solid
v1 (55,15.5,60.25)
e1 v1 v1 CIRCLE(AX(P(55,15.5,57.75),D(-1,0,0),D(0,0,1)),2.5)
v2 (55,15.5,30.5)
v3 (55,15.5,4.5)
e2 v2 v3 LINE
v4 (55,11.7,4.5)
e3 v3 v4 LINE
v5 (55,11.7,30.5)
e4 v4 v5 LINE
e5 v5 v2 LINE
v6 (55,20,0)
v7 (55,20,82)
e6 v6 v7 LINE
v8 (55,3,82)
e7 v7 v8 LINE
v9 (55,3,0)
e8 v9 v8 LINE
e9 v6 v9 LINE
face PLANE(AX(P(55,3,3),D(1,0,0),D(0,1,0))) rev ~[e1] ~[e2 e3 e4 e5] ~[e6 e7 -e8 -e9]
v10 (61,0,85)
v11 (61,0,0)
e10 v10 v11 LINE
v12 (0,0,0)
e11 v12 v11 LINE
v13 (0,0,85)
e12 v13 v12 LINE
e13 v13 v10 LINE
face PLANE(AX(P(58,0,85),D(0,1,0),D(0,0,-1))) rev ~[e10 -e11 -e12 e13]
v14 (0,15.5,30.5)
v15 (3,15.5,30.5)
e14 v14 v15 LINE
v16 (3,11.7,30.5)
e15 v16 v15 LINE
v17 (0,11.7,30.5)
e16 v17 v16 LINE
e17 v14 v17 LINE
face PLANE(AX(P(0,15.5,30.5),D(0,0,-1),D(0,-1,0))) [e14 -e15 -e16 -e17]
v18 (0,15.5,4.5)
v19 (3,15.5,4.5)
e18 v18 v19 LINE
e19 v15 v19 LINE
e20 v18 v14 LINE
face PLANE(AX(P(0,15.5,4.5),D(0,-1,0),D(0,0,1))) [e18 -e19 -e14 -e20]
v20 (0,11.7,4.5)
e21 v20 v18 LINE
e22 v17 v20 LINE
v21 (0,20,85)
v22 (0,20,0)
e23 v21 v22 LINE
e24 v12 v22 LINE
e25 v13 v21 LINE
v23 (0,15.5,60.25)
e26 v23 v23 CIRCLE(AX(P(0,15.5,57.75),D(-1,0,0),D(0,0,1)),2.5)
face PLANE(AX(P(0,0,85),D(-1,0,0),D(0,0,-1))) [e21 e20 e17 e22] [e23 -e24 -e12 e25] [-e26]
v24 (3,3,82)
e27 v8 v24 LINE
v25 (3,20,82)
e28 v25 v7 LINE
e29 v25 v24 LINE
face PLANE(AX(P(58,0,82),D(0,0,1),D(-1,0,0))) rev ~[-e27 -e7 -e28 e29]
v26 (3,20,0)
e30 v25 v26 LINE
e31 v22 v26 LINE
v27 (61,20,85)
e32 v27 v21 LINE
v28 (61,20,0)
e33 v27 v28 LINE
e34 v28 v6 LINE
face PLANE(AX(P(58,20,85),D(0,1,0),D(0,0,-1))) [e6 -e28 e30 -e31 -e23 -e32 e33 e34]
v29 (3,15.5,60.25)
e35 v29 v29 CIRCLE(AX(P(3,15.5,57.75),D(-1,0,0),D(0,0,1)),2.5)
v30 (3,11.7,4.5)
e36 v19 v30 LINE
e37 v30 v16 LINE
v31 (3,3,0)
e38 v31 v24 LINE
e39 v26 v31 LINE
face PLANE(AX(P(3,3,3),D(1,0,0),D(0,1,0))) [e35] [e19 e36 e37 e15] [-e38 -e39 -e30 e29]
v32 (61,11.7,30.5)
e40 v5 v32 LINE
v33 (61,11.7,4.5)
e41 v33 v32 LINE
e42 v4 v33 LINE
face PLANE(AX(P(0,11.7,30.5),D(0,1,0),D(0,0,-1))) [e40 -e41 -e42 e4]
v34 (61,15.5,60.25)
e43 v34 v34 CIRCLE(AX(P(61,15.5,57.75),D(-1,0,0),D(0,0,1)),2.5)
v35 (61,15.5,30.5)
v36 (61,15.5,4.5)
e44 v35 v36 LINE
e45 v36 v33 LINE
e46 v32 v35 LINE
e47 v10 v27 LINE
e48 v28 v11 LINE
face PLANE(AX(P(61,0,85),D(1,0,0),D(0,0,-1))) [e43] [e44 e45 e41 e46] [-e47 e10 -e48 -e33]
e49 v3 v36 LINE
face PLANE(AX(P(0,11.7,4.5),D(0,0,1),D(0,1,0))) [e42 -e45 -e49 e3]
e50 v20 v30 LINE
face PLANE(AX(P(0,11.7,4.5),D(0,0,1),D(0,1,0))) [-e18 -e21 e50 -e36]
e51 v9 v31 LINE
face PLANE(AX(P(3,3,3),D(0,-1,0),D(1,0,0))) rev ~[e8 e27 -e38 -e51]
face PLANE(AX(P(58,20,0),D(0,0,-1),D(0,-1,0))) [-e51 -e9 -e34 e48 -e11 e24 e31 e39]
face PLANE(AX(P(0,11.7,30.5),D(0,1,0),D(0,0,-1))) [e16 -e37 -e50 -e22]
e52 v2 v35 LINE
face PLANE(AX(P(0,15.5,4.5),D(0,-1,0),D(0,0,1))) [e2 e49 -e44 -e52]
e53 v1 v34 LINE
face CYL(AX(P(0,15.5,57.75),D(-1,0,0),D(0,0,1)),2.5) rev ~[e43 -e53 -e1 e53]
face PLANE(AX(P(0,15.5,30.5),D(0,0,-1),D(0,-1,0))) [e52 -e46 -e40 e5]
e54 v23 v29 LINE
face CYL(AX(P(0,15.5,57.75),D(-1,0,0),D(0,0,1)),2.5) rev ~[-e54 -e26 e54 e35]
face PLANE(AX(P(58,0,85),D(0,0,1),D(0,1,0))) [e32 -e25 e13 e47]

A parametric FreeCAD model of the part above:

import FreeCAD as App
import Part
import Sketcher


def faces_at(feature, points):
    """Names of the faces that lie closest to the given points."""
    faces = feature.Shape.Faces
    near = lambda p: min(range(len(faces)), key=lambda i: faces[i].distToShape(Part.Vertex(*p))[0])
    return sorted({f"Face{near(p) + 1}" for p in points})

doc = App.newDocument("Part")
params = doc.addObject("Spreadsheet::Sheet", "Params")
for row, (alias, value) in enumerate([
    ("sketch1_width", "58 mm"),
    ("sketch1_height", "85 mm"),
    ("pad1_length", "20 mm"),
    ("thickness_wall", "3 mm"),
    ("sketch2_width", "52 mm"),
    ("sketch2_height", "17 mm"),
    ("pocket1_length", "10 mm"),
    ("sketch3_width", "20 mm"),
    ("sketch3_height", "85 mm"),
    ("pad2_length", "3 mm"),
    ("sketch4_height", "26 mm"),
    ("sketch4_width", "3.8 mm"),
    ("sketch5_diameter", "5 mm"),
], start=1):
    params.set(f"A{row}", alias)
    params.set(f"B{row}", "=" + value)
    params.setAlias(f"B{row}", alias)

body = doc.addObject("PartDesign::Body", "Body")

# Sketch on XZ plane
sketch1 = body.newObject("Sketcher::SketchObject", "Sketch")
sketch1.AttachmentSupport = (doc.getObject("XZ_Plane"), [""])
sketch1.MapMode = "FlatFace"
sketch1.addGeometry([
    Part.LineSegment(App.Vector(58, 0, 0), App.Vector(0, 0, 0)),
    Part.LineSegment(App.Vector(0, 0, 0), App.Vector(0, 85, 0)),
    Part.LineSegment(App.Vector(0, 85, 0), App.Vector(58, 85, 0)),
    Part.LineSegment(App.Vector(58, 85, 0), App.Vector(58, 0, 0)),
], False)
sketch1.addConstraint([
    Sketcher.Constraint("Coincident", 0, 2, 1, 1),
    Sketcher.Constraint("Coincident", 1, 2, 2, 1),
    Sketcher.Constraint("Coincident", 2, 2, 3, 1),
    Sketcher.Constraint("Coincident", 3, 2, 0, 1),
    Sketcher.Constraint("Horizontal", 0),
    Sketcher.Constraint("Vertical", 1),
    Sketcher.Constraint("Horizontal", 2),
    Sketcher.Constraint("Vertical", 3),
    Sketcher.Constraint("Coincident", 0, 2, -1, 1),
    Sketcher.Constraint("DistanceX", 0, 2, 0, 1, 58.0),
    Sketcher.Constraint("DistanceY", 1, 1, 1, 2, 85.0),
])
sketch1.setExpression("Constraints[9]", "Params.sketch1_width")
sketch1.setExpression("Constraints[10]", "Params.sketch1_height")
pad1 = body.newObject("PartDesign::Pad", "Pad")
pad1.Profile = sketch1
pad1.setExpression("Length", "Params.pad1_length")
pad1.Reversed = True
doc.recompute()

thickness = body.newObject("PartDesign::Thickness", "Thickness")
thickness.Base = (pad1, faces_at(pad1, [(19.333, 20, 28.333)]))
thickness.setExpression("Value", "Params.thickness_wall")
thickness.Reversed = True
thickness.Join = "Intersection"

# Sketch on XY plane
sketch2 = body.newObject("Sketcher::SketchObject", "Sketch001")
sketch2.AttachmentSupport = (doc.getObject("XY_Plane"), [""])
sketch2.MapMode = "FlatFace"
sketch2.AttachmentOffset = App.Placement(App.Vector(0, 0, 3), App.Rotation())
sketch2.addGeometry([
    Part.LineSegment(App.Vector(3, 20, 0), App.Vector(3, 3, 0)),
    Part.LineSegment(App.Vector(3, 3, 0), App.Vector(55, 3, 0)),
    Part.LineSegment(App.Vector(55, 3, 0), App.Vector(55, 20, 0)),
    Part.LineSegment(App.Vector(55, 20, 0), App.Vector(3, 20, 0)),
], False)
sketch2.addConstraint([
    Sketcher.Constraint("Coincident", 0, 2, 1, 1),
    Sketcher.Constraint("Coincident", 1, 2, 2, 1),
    Sketcher.Constraint("Coincident", 2, 2, 3, 1),
    Sketcher.Constraint("Coincident", 3, 2, 0, 1),
    Sketcher.Constraint("Vertical", 0),
    Sketcher.Constraint("Horizontal", 1),
    Sketcher.Constraint("Vertical", 2),
    Sketcher.Constraint("Horizontal", 3),
    Sketcher.Constraint("DistanceX", 1, 1, 1, 2, 52.0),
    Sketcher.Constraint("DistanceY", 0, 2, 0, 1, 17.0),
    Sketcher.Constraint("DistanceX", -1, 1, 0, 2, 3.0),
    Sketcher.Constraint("DistanceY", -1, 1, 0, 2, 3.0),
])
sketch2.setExpression("Constraints[8]", "Params.sketch2_width")
sketch2.setExpression("Constraints[9]", "Params.sketch2_height")
pocket1 = body.newObject("PartDesign::Pocket", "Pocket")
pocket1.Profile = sketch2
pocket1.setExpression("Length", "Params.pocket1_length")

# Sketch on YZ plane
sketch3 = body.newObject("Sketcher::SketchObject", "Sketch002")
sketch3.AttachmentSupport = (doc.getObject("YZ_Plane"), [""])
sketch3.MapMode = "FlatFace"
sketch3.AttachmentOffset = App.Placement(App.Vector(0, 0, 58), App.Rotation())
sketch3.addGeometry([
    Part.LineSegment(App.Vector(20, 85, 0), App.Vector(0, 85, 0)),
    Part.LineSegment(App.Vector(0, 85, 0), App.Vector(0, 0, 0)),
    Part.LineSegment(App.Vector(0, 0, 0), App.Vector(20, 0, 0)),
    Part.LineSegment(App.Vector(20, 0, 0), App.Vector(20, 85, 0)),
], False)
sketch3.addConstraint([
    Sketcher.Constraint("Coincident", 0, 2, 1, 1),
    Sketcher.Constraint("Coincident", 1, 2, 2, 1),
    Sketcher.Constraint("Coincident", 2, 2, 3, 1),
    Sketcher.Constraint("Coincident", 3, 2, 0, 1),
    Sketcher.Constraint("Horizontal", 0),
    Sketcher.Constraint("Vertical", 1),
    Sketcher.Constraint("Horizontal", 2),
    Sketcher.Constraint("Vertical", 3),
    Sketcher.Constraint("Coincident", 1, 2, -1, 1),
    Sketcher.Constraint("DistanceX", 0, 2, 0, 1, 20.0),
    Sketcher.Constraint("DistanceY", 1, 2, 1, 1, 85.0),
])
sketch3.setExpression("Constraints[9]", "Params.sketch3_width")
sketch3.setExpression("Constraints[10]", "Params.sketch3_height")
pad2 = body.newObject("PartDesign::Pad", "Pad001")
pad2.Profile = sketch3
pad2.setExpression("Length", "Params.pad2_length")

# Sketch on YZ plane
sketch4 = body.newObject("Sketcher::SketchObject", "Sketch003")
sketch4.AttachmentSupport = (doc.getObject("YZ_Plane"), [""])
sketch4.MapMode = "FlatFace"
sketch4.addGeometry([
    Part.LineSegment(App.Vector(15.5, 30.5, 0), App.Vector(15.5, 4.5, 0)),
    Part.LineSegment(App.Vector(15.5, 4.5, 0), App.Vector(11.7, 4.5, 0)),
    Part.LineSegment(App.Vector(11.7, 4.5, 0), App.Vector(11.7, 30.5, 0)),
    Part.LineSegment(App.Vector(11.7, 30.5, 0), App.Vector(15.5, 30.5, 0)),
], False)
sketch4.addConstraint([
    Sketcher.Constraint("Coincident", 0, 2, 1, 1),
    Sketcher.Constraint("Coincident", 1, 2, 2, 1),
    Sketcher.Constraint("Coincident", 2, 2, 3, 1),
    Sketcher.Constraint("Coincident", 3, 2, 0, 1),
    Sketcher.Constraint("Vertical", 0),
    Sketcher.Constraint("Horizontal", 1),
    Sketcher.Constraint("Vertical", 2),
    Sketcher.Constraint("Horizontal", 3),
    Sketcher.Constraint("DistanceY", 0, 2, 0, 1, 26.0),
    Sketcher.Constraint("DistanceX", 1, 2, 1, 1, 3.8),
    Sketcher.Constraint("DistanceY", -1, 1, 0, 2, 4.5),
    Sketcher.Constraint("DistanceX", -1, 1, 1, 2, 11.7),
])
sketch4.setExpression("Constraints[8]", "Params.sketch4_height")
sketch4.setExpression("Constraints[9]", "Params.sketch4_width")
pocket2 = body.newObject("PartDesign::Pocket", "Pocket001")
pocket2.Profile = sketch4
pocket2.Type = "ThroughAll"
pocket2.Reversed = True

# Sketch on YZ plane
sketch5 = body.newObject("Sketcher::SketchObject", "Sketch004")
sketch5.AttachmentSupport = (doc.getObject("YZ_Plane"), [""])
sketch5.MapMode = "FlatFace"
sketch5.addGeometry(Part.Circle(App.Vector(15.5, 57.8, 0), App.Vector(0, 0, 1), 2.5), False)
sketch5.addConstraint([
    Sketcher.Constraint("Diameter", 0, 5.0),
    Sketcher.Constraint("DistanceX", -1, 1, 0, 3, 15.5),
    Sketcher.Constraint("DistanceY", -1, 1, 0, 3, 57.75),
])
sketch5.setExpression("Constraints[0]", "Params.sketch5_diameter")
pocket3 = body.newObject("PartDesign::Pocket", "Pocket002")
pocket3.Profile = sketch5
pocket3.Type = "ThroughAll"
pocket3.Reversed = True

doc.recompute()
